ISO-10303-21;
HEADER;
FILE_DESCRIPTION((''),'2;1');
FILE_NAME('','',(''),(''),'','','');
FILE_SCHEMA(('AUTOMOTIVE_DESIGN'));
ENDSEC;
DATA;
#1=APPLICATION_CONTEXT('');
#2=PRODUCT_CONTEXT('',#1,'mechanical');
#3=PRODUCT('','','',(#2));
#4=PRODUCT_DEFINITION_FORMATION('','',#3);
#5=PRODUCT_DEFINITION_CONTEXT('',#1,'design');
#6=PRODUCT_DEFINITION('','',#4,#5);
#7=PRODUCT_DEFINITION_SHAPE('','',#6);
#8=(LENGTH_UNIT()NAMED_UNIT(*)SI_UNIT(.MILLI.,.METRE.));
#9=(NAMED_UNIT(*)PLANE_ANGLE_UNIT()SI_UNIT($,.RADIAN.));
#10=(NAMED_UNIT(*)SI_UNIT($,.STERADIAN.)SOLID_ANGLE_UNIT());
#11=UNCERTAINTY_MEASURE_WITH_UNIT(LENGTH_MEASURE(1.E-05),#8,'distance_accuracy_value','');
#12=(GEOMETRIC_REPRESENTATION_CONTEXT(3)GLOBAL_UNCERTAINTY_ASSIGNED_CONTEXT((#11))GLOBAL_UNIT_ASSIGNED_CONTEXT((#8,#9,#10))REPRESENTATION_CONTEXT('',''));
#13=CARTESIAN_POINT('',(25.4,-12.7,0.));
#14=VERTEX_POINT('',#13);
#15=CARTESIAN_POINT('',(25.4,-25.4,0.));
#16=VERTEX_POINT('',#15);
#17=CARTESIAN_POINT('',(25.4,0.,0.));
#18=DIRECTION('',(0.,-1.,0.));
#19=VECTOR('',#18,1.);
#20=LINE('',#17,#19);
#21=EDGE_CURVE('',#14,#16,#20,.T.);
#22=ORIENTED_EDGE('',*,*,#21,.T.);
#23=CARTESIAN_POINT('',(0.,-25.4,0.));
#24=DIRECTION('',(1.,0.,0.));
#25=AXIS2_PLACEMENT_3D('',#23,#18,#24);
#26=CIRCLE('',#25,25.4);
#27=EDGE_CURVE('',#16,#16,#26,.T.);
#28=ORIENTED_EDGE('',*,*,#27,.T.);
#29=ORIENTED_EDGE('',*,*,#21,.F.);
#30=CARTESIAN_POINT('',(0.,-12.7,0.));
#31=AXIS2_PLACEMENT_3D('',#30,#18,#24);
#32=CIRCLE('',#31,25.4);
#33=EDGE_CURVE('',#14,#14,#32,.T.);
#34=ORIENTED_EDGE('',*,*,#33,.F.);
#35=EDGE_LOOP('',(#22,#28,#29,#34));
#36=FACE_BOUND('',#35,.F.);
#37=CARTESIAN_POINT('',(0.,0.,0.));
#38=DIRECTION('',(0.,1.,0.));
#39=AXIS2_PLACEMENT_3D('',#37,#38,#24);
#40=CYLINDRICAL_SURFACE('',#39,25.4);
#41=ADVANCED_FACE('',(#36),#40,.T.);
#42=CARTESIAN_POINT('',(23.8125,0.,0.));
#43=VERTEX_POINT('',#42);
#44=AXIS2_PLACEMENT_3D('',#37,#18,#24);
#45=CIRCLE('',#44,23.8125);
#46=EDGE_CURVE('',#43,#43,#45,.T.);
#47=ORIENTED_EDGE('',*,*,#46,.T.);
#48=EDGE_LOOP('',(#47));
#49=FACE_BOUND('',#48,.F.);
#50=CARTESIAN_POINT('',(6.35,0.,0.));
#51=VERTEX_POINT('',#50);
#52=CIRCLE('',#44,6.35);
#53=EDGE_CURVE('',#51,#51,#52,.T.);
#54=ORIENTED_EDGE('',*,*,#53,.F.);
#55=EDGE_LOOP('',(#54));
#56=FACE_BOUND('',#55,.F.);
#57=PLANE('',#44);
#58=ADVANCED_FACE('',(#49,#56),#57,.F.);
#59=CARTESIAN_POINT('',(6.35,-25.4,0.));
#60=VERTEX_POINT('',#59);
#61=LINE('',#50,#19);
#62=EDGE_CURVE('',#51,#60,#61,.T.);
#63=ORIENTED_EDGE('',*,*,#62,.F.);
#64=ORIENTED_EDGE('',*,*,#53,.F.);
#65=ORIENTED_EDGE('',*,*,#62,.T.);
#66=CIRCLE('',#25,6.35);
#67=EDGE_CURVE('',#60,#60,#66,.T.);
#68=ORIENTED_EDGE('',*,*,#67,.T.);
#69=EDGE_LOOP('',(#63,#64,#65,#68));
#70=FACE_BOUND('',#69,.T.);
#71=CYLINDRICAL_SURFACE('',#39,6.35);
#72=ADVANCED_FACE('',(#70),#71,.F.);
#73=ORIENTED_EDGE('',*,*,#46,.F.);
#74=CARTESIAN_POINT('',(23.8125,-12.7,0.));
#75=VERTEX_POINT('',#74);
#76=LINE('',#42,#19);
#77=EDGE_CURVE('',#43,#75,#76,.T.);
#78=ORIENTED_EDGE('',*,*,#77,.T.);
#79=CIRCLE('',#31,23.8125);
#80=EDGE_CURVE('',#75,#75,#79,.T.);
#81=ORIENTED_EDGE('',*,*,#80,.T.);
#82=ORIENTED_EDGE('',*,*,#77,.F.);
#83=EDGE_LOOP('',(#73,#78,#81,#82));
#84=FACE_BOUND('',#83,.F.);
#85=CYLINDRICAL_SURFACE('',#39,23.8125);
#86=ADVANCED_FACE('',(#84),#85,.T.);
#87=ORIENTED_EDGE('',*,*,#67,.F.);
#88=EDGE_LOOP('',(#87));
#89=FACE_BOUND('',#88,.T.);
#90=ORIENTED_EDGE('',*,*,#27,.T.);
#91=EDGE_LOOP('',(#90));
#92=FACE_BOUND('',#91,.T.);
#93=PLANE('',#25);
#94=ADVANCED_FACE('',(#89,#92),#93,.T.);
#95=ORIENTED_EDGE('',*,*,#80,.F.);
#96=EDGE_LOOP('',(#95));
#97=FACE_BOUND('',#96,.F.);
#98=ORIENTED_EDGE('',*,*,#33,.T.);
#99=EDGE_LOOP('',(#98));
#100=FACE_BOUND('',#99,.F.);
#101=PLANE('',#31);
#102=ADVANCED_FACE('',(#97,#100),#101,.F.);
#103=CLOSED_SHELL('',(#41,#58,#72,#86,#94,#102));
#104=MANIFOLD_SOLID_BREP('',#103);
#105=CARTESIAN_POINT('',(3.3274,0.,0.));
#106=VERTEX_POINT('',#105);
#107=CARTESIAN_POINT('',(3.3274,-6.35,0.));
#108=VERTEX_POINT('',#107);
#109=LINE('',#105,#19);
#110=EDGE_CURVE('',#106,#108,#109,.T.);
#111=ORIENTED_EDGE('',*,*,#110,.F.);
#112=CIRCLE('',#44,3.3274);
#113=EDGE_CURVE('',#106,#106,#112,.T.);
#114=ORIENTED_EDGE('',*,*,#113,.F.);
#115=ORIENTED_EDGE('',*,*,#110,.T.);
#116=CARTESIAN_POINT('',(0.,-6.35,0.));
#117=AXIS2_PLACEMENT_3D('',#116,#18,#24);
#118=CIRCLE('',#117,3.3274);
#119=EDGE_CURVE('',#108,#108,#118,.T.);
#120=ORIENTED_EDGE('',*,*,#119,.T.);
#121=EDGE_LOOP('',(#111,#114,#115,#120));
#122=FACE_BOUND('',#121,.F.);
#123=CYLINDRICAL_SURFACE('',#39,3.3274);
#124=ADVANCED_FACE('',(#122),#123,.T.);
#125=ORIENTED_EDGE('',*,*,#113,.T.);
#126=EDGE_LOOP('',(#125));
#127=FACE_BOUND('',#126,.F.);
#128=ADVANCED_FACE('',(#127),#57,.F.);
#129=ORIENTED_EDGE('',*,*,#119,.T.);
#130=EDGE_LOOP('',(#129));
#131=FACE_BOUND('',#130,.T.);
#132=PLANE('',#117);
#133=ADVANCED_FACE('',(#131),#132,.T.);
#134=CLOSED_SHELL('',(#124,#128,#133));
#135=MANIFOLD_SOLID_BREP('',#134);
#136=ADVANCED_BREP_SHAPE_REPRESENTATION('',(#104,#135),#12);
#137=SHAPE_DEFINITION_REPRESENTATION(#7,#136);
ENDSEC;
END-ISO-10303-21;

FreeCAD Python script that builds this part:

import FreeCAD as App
import Part
import Sketcher

V = App.Vector
Q = App.Units.Quantity

doc = App.newDocument("Part")
body = doc.addObject("PartDesign::Body", "Body")

# Sketch on XZ plane
sketch1 = body.newObject("Sketcher::SketchObject", "Sketch")
sketch1.AttachmentSupport = (doc.getObject("XZ_Plane"), [""])
sketch1.MapMode = "FlatFace"
sketch1.addGeometry([
    Part.Circle(V(0, 0, 0), V(0, 0, 1), 25),
    Part.Circle(V(0, 0, 0), V(0, 0, 1), 6),
], False)
sketch1.addConstraint([
    Sketcher.Constraint("Coincident", 0, 3, -1, 1),
    Sketcher.Constraint("Coincident", 1, 3, -1, 1),
    Sketcher.Constraint("Diameter", 0, Q("2 in")),
    Sketcher.Constraint("Diameter", 1, Q("0.5 in")),
])
pad1 = body.newObject("PartDesign::Pad", "Pad")
pad1.Profile = sketch1
pad1.Length = Q("1 in")

# Sketch on XZ plane
sketch2 = body.newObject("Sketcher::SketchObject", "Sketch001")
sketch2.AttachmentSupport = (doc.getObject("XZ_Plane"), [""])
sketch2.MapMode = "FlatFace"
sketch2.addGeometry([
    Part.Circle(V(0, 0, 0), V(0, 0, 1), 25),
    Part.Circle(V(0, 0, 0), V(0, 0, 1), 24),
], False)
sketch2.addConstraint([
    Sketcher.Constraint("Coincident", 0, 3, -1, 1),
    Sketcher.Constraint("Coincident", 1, 3, -1, 1),
    Sketcher.Constraint("Diameter", 0, Q("2 in")),
    Sketcher.Constraint("Diameter", 1, Q("1.875 in")),
])
pocket1 = body.newObject("PartDesign::Pocket", "Pocket")
pocket1.Profile = sketch2
pocket1.Length = Q("0.5 in")
pocket1.Reversed = True
body2 = doc.addObject("PartDesign::Body", "Body001")

# Sketch on XZ plane
sketch3 = body2.newObject("Sketcher::SketchObject", "Sketch002")
sketch3.AttachmentSupport = (doc.getObject("XZ_Plane001"), [""])
sketch3.MapMode = "FlatFace"
sketch3.addGeometry(Part.Circle(V(0, 0, 0), V(0, 0, 1), 3.3), False)
sketch3.addConstraint([
    Sketcher.Constraint("Coincident", 0, 3, -1, 1),
    Sketcher.Constraint("Diameter", 0, Q("0.262 in")),
])
pad2 = body2.newObject("PartDesign::Pad", "Pad001")
pad2.Profile = sketch3
pad2.Length = Q("0.25 in")

doc.recompute()
